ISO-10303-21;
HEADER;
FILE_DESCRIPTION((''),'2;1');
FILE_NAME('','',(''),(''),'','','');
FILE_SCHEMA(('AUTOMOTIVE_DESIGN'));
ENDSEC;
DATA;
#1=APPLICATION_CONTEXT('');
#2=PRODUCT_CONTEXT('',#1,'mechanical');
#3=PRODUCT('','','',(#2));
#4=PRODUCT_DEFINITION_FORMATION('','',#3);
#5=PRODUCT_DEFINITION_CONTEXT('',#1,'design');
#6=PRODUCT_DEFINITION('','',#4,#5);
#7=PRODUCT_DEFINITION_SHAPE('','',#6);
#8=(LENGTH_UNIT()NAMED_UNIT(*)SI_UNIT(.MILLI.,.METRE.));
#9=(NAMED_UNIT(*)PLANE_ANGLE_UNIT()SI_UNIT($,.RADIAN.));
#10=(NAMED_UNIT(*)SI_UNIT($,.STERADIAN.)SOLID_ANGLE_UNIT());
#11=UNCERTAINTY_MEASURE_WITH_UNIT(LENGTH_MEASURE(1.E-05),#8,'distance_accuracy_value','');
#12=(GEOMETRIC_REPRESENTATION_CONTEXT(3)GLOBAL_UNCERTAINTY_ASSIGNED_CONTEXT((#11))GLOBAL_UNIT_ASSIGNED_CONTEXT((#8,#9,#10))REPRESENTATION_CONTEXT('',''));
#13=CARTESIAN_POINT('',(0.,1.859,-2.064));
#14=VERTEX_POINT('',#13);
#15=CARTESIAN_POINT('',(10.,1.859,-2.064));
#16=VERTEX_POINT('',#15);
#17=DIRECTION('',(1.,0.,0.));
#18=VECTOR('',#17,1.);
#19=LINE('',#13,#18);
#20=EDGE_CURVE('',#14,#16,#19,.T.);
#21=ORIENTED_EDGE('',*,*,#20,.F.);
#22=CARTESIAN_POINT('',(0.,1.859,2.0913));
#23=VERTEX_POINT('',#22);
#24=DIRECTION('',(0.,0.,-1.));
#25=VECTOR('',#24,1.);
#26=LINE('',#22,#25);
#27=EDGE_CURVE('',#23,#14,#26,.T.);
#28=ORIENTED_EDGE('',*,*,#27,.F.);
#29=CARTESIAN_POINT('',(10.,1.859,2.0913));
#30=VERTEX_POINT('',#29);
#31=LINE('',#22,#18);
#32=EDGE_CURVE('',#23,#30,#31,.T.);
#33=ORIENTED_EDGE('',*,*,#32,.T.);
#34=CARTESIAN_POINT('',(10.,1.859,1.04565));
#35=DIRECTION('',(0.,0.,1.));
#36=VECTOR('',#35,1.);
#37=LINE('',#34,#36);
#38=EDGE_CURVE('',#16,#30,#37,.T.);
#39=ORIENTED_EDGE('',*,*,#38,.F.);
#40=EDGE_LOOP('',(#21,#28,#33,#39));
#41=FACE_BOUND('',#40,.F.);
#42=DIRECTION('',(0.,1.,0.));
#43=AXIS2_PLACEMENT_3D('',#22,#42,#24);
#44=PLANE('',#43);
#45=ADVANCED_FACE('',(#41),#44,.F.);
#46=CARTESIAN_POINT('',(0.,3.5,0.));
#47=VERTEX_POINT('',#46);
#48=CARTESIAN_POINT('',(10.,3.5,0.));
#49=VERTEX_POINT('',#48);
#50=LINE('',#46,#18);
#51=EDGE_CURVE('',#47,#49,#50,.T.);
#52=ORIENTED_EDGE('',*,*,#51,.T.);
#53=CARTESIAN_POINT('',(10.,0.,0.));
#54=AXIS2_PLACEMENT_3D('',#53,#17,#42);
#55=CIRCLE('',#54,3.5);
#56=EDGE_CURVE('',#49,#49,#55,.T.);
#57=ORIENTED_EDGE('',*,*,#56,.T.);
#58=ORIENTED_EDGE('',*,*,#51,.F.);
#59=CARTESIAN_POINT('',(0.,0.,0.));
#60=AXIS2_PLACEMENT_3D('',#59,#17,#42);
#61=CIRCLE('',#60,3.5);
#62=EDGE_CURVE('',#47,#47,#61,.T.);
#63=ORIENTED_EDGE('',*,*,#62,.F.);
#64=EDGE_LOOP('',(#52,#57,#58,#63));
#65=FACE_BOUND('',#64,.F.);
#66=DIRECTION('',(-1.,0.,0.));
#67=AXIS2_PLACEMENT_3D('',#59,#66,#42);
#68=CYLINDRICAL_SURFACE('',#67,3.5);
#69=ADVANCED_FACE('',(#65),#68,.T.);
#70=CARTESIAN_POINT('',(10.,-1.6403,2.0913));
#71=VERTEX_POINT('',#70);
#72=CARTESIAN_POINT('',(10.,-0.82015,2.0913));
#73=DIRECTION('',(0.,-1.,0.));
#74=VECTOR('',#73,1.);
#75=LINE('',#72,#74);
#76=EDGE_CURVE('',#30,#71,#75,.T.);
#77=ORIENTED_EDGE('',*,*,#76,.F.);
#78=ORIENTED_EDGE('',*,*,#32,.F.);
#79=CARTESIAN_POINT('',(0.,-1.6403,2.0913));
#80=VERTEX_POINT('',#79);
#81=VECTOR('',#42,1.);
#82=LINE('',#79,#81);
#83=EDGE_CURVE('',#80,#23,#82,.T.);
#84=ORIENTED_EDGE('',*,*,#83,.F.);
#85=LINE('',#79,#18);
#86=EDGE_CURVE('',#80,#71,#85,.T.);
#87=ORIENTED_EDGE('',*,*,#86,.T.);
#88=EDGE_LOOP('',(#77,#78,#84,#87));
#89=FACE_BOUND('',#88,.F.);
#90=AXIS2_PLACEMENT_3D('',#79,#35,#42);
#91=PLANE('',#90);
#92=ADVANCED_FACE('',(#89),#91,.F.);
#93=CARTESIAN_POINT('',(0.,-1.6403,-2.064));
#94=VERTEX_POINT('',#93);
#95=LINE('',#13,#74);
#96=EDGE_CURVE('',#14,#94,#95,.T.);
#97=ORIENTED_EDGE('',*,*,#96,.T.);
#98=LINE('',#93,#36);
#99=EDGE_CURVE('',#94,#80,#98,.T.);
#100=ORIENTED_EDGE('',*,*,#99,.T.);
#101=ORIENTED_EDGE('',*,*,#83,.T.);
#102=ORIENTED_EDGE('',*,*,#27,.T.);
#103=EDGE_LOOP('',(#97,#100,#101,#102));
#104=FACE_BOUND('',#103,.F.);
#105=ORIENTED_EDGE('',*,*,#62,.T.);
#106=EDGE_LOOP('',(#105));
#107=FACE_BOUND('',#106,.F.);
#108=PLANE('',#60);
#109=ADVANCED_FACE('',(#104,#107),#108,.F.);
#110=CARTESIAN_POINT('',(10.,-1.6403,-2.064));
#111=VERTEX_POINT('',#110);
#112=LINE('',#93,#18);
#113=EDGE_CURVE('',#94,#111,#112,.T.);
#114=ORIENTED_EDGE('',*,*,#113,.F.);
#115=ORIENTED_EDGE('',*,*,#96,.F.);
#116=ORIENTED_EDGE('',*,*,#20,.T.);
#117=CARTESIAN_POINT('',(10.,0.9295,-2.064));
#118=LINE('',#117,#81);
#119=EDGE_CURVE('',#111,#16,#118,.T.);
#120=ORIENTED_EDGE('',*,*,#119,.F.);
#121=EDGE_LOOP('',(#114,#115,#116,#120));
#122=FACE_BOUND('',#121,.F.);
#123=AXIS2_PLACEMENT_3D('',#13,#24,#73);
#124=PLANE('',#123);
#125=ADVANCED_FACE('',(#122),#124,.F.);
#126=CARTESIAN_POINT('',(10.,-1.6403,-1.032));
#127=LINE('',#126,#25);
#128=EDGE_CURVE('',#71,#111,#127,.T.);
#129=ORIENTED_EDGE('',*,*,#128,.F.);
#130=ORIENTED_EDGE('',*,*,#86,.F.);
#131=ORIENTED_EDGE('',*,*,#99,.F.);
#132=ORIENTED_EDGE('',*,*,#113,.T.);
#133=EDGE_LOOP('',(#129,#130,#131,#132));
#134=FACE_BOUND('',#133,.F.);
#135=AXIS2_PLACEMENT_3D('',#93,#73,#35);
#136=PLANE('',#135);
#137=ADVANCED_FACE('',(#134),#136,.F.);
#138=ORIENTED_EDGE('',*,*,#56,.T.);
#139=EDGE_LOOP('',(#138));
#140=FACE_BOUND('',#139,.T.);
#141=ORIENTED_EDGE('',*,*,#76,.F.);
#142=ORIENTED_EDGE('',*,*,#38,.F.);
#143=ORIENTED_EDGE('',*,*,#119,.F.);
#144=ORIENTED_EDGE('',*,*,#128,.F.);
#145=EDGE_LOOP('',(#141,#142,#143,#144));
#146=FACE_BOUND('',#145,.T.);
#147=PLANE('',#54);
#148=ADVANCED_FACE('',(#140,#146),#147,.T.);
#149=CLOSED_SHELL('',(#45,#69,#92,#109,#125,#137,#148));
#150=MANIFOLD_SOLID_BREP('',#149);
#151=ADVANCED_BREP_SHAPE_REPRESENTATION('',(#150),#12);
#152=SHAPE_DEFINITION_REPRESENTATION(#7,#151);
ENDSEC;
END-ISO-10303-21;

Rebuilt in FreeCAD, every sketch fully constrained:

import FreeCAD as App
import Part
import Sketcher

V = App.Vector
Q = App.Units.Quantity

doc = App.newDocument("Part")
params = doc.addObject("Spreadsheet::Sheet", "Params")
for row, (alias, value) in enumerate([
    ("sketch1_diameter", "7 mm"),
    ("pad1_length", "10 mm"),
    ("pocket1_length", "16.25 mm"),
], start=1):
    params.set(f"A{row}", alias)
    params.set(f"B{row}", "=" + value)
    params.setAlias(f"B{row}", alias)

body = doc.addObject("PartDesign::Body", "Body")

sketch1 = body.newObject("Sketcher::SketchObject", "Sketch")
sketch1.AttachmentSupport = (doc.getObject("YZ_Plane"), [""])
sketch1.MapMode = "FlatFace"
sketch1.addGeometry(Part.Circle(V(0, 0, 0), V(0, 0, 1), 3.5), False)
sketch1.addConstraint([
    Sketcher.Constraint("Coincident", 0, 3, -1, 1),
    Sketcher.Constraint("Diameter", 0, Q("7 mm")),
])
sketch1.setExpression("Constraints[1]", "Params.sketch1_diameter")
pad1 = body.newObject("PartDesign::Pad", "Pad")
pad1.Profile = sketch1
pad1.setExpression("Length", "Params.pad1_length")

sketch2 = body.newObject("Sketcher::SketchObject", "Sketch001")
sketch2.AttachmentSupport = (doc.getObject("YZ_Plane"), [""])
sketch2.MapMode = "FlatFace"
sketch2.addGeometry([
    Part.LineSegment(V(-1.6, 2.1, 0), V(1.9, 2.1, 0)),
    Part.LineSegment(V(1.9, 2.1, 0), V(1.9, -2.1, 0)),
    Part.LineSegment(V(1.9, -2.1, 0), V(-1.6, -2.1, 0)),
    Part.LineSegment(V(-1.6, -2.1, 0), V(-1.6, 2.1, 0)),
], False)
sketch2.addConstraint([
    Sketcher.Constraint("Coincident", 0, 2, 1, 1),
    Sketcher.Constraint("Coincident", 1, 2, 2, 1),
    Sketcher.Constraint("Coincident", 2, 2, 3, 1),
    Sketcher.Constraint("Coincident", 3, 2, 0, 1),
    Sketcher.Constraint("Horizontal", 0),
    Sketcher.Constraint("Vertical", 1),
    Sketcher.Constraint("Horizontal", 2),
    Sketcher.Constraint("Vertical", 3),
    Sketcher.Constraint("DistanceX", 0, 1, 0, 2, Q("3.4993 mm")),
    Sketcher.Constraint("DistanceY", 1, 2, 1, 1, Q("4.1553 mm")),
    Sketcher.Constraint("DistanceX", -1, 1, 0, 2, Q("1.859 mm")),
    Sketcher.Constraint("DistanceY", 1, 2, -1, 1, Q("2.064 mm")),
])
pocket1 = body.newObject("PartDesign::Pocket", "Pocket")
pocket1.Profile = sketch2
pocket1.setExpression("Length", "Params.pocket1_length")
pocket1.Reversed = True

doc.recompute()
